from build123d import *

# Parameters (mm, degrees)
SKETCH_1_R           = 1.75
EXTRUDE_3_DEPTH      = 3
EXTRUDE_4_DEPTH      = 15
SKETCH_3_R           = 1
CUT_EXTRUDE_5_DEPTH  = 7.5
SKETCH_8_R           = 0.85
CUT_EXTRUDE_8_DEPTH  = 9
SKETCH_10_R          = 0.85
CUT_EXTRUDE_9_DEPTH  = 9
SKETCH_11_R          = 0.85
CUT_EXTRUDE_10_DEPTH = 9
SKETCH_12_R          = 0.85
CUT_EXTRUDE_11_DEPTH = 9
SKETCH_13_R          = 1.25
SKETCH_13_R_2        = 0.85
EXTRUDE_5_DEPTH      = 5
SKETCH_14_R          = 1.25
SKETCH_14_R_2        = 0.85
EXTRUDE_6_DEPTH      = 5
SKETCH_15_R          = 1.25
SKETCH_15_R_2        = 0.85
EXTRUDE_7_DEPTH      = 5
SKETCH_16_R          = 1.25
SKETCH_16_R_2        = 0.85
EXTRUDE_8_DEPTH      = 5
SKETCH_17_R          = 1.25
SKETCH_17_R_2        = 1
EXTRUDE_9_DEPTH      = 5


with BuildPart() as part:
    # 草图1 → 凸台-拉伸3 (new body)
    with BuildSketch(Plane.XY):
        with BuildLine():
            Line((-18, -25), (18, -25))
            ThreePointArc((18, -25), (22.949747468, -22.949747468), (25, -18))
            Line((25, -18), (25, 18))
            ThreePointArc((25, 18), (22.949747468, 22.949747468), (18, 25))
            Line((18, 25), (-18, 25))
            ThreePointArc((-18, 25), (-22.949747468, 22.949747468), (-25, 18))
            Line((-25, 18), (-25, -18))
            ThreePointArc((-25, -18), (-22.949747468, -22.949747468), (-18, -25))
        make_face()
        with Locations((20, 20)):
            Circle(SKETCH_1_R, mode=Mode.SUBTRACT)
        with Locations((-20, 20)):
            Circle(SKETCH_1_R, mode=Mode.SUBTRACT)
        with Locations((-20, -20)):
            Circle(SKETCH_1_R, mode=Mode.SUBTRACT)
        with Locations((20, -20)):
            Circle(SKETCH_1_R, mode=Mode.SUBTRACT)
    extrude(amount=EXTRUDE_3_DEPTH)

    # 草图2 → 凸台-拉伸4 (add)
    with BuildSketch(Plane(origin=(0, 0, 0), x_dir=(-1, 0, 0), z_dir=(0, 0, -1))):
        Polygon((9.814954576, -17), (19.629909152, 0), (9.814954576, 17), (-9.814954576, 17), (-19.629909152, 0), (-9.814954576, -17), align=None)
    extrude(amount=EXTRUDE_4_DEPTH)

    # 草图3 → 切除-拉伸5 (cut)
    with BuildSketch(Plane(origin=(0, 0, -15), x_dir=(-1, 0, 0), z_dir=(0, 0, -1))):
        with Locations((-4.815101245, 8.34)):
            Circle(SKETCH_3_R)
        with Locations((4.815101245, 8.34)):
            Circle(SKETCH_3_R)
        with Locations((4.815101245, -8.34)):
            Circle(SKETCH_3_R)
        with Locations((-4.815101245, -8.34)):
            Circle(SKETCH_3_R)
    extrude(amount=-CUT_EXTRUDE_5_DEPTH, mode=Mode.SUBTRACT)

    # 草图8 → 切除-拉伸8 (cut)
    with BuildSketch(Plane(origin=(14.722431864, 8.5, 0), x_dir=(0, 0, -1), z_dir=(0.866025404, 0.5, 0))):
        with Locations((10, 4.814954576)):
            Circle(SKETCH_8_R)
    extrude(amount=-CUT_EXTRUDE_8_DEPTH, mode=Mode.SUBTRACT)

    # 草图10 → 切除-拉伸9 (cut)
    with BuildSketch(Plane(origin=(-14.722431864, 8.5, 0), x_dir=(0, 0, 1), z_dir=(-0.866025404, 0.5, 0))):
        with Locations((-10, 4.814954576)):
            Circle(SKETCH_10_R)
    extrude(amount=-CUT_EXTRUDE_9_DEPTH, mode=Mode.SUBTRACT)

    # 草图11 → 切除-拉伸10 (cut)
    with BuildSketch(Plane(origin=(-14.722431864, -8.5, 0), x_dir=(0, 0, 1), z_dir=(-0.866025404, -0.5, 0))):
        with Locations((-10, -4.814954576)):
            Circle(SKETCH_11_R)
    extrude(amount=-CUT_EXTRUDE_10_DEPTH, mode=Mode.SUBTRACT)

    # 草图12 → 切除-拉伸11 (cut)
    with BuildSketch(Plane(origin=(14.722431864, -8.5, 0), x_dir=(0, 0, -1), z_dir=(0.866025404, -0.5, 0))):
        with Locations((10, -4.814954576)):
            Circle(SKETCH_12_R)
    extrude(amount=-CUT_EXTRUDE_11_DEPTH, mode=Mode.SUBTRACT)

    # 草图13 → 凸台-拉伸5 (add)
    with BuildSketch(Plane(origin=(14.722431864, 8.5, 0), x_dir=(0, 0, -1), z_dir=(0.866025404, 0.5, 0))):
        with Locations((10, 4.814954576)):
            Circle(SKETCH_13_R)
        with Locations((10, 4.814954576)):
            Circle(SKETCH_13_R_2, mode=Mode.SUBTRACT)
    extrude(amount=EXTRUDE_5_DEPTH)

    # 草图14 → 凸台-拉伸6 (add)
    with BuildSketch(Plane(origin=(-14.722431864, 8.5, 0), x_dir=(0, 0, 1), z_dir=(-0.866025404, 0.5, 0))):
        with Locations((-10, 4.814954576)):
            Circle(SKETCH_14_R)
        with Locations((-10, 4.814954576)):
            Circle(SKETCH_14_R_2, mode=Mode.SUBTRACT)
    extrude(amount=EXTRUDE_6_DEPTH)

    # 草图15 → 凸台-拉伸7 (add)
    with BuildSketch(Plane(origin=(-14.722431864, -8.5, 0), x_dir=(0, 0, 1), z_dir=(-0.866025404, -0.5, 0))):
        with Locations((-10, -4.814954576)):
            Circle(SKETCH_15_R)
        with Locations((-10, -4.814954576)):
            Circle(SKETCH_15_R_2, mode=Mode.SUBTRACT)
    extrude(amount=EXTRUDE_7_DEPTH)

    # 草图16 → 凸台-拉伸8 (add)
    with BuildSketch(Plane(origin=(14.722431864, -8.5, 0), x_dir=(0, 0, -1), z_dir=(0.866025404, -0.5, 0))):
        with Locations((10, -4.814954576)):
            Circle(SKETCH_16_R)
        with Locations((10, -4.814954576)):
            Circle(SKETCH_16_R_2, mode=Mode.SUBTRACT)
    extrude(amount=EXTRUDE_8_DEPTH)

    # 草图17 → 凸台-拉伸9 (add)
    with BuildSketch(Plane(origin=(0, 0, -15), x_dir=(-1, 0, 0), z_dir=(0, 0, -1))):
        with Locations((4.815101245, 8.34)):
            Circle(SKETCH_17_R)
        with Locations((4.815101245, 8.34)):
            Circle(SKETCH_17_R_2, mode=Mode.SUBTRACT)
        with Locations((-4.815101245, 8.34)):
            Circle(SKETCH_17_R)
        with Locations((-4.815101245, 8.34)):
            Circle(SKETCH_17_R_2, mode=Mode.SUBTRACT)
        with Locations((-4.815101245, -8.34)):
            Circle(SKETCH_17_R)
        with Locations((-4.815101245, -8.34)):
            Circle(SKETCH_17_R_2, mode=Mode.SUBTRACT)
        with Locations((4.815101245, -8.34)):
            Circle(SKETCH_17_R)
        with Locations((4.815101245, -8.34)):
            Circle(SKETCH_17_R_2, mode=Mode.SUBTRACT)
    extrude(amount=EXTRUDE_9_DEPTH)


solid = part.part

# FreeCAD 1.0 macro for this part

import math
import FreeCAD as App
import Part
import Sketcher
from FreeCAD import Vector
Q = App.Units.Quantity


def add_polygon(sketch, points):
    """Adds a closed chain of lines whose ends are joined by coincident constraints."""
    first, n = sketch.GeometryCount, len(points)
    for a, b in zip(points, points[1:] + points[:1]):
        sketch.addGeometry(Part.LineSegment(App.Vector(*a, 0), App.Vector(*b, 0)), False)
    for i in range(n):
        sketch.addConstraint(Sketcher.Constraint("Coincident", first + i, 2, first + (i + 1) % n, 1))

doc = App.newDocument("Part")
params = doc.addObject("Spreadsheet::Sheet", "Params")
for row, (alias, value) in enumerate([
    ("sketch1_radius", "7 mm"),
    ("sketch1_diameter", "3.5 mm"),
    ("sketch1_width", "36 mm"),
    ("pad1_length", "3 mm"),
    ("pad2_length", "15 mm"),
    ("sketch3_diameter", "2 mm"),
    ("pocket1_length", "7.5 mm"),
    ("sketch4_diameter", "1.7 mm"),
    ("pocket2_length", "9 mm"),
    ("sketch5_diameter", "1.7 mm"),
    ("pocket3_length", "9 mm"),
    ("sketch6_diameter", "1.7 mm"),
    ("pocket4_length", "9 mm"),
    ("sketch7_diameter", "1.7 mm"),
    ("pocket5_length", "9 mm"),
    ("sketch8_diameter", "2.5 mm"),
    ("sketch8_diameter2", "1.7 mm"),
    ("pad3_length", "5 mm"),
    ("sketch9_diameter", "2.5 mm"),
    ("sketch9_diameter2", "1.7 mm"),
    ("pad4_length", "5 mm"),
    ("sketch10_diameter", "2.5 mm"),
    ("sketch10_diameter2", "1.7 mm"),
    ("pad5_length", "5 mm"),
    ("sketch11_diameter", "2.5 mm"),
    ("sketch11_diameter2", "1.7 mm"),
    ("pad6_length", "5 mm"),
    ("sketch12_diameter", "2 mm"),
    ("sketch12_diameter2", "2.5 mm"),
    ("pad7_length", "5 mm"),
], start=1):
    params.set(f"A{row}", alias)
    params.set(f"B{row}", "=" + value)
    params.setAlias(f"B{row}", alias)

body = doc.addObject("PartDesign::Body", "Body")

# Sketch on XY plane
sketch1 = body.newObject("Sketcher::SketchObject", "Sketch")
sketch1.AttachmentSupport = (doc.getObject("XY_Plane"), [""])
sketch1.MapMode = "FlatFace"
sketch1.addGeometry(Part.LineSegment(Vector(-18, -25, 0), Vector(18, -25, 0)), False)
sketch1.addGeometry(Part.ArcOfCircle(Part.Circle(Vector(18, -18, 0), Vector(0, 0, 1), 7), math.radians(-90), math.radians(0)), False)
sketch1.addGeometry(Part.LineSegment(Vector(25, -18, 0), Vector(25, 18, 0)), False)
sketch1.addGeometry(Part.ArcOfCircle(Part.Circle(Vector(18, 18, 0), Vector(0, 0, 1), 7), math.radians(0), math.radians(90)), False)
sketch1.addGeometry(Part.LineSegment(Vector(18, 25, 0), Vector(-18, 25, 0)), False)
sketch1.addGeometry(Part.ArcOfCircle(Part.Circle(Vector(-18, 18, 0), Vector(0, 0, 1), 7), math.radians(90), math.radians(180)), False)
sketch1.addGeometry(Part.LineSegment(Vector(-25, 18, 0), Vector(-25, -18, 0)), False)
sketch1.addGeometry(Part.ArcOfCircle(Part.Circle(Vector(-18, -18, 0), Vector(0, 0, 1), 7), math.radians(-180), math.radians(-90)), False)
sketch1.addGeometry(Part.Circle(Vector(-20, -20, 0), Vector(0, 0, 1), 1.75), False)
sketch1.addGeometry(Part.Circle(Vector(20, -20, 0), Vector(0, 0, 1), 1.75), False)
sketch1.addGeometry(Part.Circle(Vector(-20, 20, 0), Vector(0, 0, 1), 1.75), False)
sketch1.addGeometry(Part.Circle(Vector(20, 20, 0), Vector(0, 0, 1), 1.75), False)
sketch1.addConstraint(Sketcher.Constraint("Tangent", 0, 2, 1, 1))
sketch1.addConstraint(Sketcher.Constraint("Tangent", 1, 2, 2, 1))
sketch1.addConstraint(Sketcher.Constraint("Tangent", 2, 2, 3, 1))
sketch1.addConstraint(Sketcher.Constraint("Tangent", 3, 2, 4, 1))
sketch1.addConstraint(Sketcher.Constraint("Tangent", 4, 2, 5, 1))
sketch1.addConstraint(Sketcher.Constraint("Tangent", 5, 2, 6, 1))
sketch1.addConstraint(Sketcher.Constraint("Tangent", 6, 2, 7, 1))
sketch1.addConstraint(Sketcher.Constraint("Tangent", 7, 2, 0, 1))
sketch1.addConstraint(Sketcher.Constraint("Horizontal", 0))
sketch1.addConstraint(Sketcher.Constraint("Vertical", 2))
sketch1.addConstraint(Sketcher.Constraint("Horizontal", 4))
sketch1.addConstraint(Sketcher.Constraint("Vertical", 6))
sketch1.addConstraint(Sketcher.Constraint("Equal", 1, 3))
sketch1.addConstraint(Sketcher.Constraint("Equal", 3, 5))
sketch1.addConstraint(Sketcher.Constraint("Equal", 5, 7))
sketch1.addConstraint(Sketcher.Constraint("Equal", 8, 9))
sketch1.addConstraint(Sketcher.Constraint("Equal", 9, 10))
sketch1.addConstraint(Sketcher.Constraint("Equal", 10, 11))
sketch1.addConstraint(Sketcher.Constraint("Symmetric", 1, 3, 5, 3, -1, 1))
sketch1.addConstraint(Sketcher.Constraint("Symmetric", 9, 3, 10, 3, -1, 1))
sketch1.addConstraint(Sketcher.Constraint("Symmetric", 8, 3, 11, 3, -1, 1))
sketch1.addConstraint(Sketcher.Constraint("Symmetric", 8, 3, 9, 3, -2))
sketch1.addConstraint(Sketcher.Constraint("Equal", 4, 2))
sketch1.addConstraint(Sketcher.Constraint("Radius", 1, 7.0))
sketch1.addConstraint(Sketcher.Constraint("Diameter", 8, 3.5))
sketch1.addConstraint(Sketcher.Constraint("DistanceX", 0, 1, 0, 2, 36.0))
sketch1.addConstraint(Sketcher.Constraint("DistanceX", 8, 3, -1, 1, 20.0))
sketch1.addConstraint(Sketcher.Constraint("DistanceY", 8, 3, -1, 1, 20.0))
sketch1.setExpression("Constraints[23]", "Params.sketch1_radius")
sketch1.setExpression("Constraints[24]", "Params.sketch1_diameter")
sketch1.setExpression("Constraints[25]", "Params.sketch1_width")
pad1 = body.newObject("PartDesign::Pad", "Pad")
pad1.Profile = sketch1
pad1.setExpression("Length", "Params.pad1_length")

# Sketch on XY plane
sketch2 = body.newObject("Sketcher::SketchObject", "Sketch001")
sketch2.AttachmentSupport = (doc.getObject("XY_Plane"), [""])
sketch2.MapMode = "FlatFace"
add_polygon(sketch2, [(-9.814955, -17), (-19.629909, 0), (-9.814955, 17), (9.814955, 17), (19.629909, 0), (9.814955, -17)])  # lines 0-5
sketch2.addConstraint(Sketcher.Constraint("Horizontal", 2))
sketch2.addConstraint(Sketcher.Constraint("Horizontal", 5))
sketch2.addConstraint(Sketcher.Constraint("Symmetric", 0, 2, 3, 2, -1, 1))
sketch2.addConstraint(Sketcher.Constraint("Symmetric", 1, 2, 4, 2, -1, 1))
sketch2.addConstraint(Sketcher.Constraint("PointOnObject", 0, 2, -1))
sketch2.addConstraint(Sketcher.Constraint("Parallel", 0, 3))
sketch2.addConstraint(Sketcher.Constraint("Vertical", 2, 2, 4, 2))
sketch2.addConstraint(Sketcher.Constraint("Angle", 0, Q("120 deg")))
sketch2.addConstraint(Sketcher.Constraint("DistanceY", -1, 1, 1, 2, 17.0))
sketch2.addConstraint(Sketcher.Constraint("DistanceX", 2, 1, 2, 2, 19.629909))
pad2 = body.newObject("PartDesign::Pad", "Pad001")
pad2.Profile = sketch2
pad2.setExpression("Length", "Params.pad2_length")
pad2.Reversed = True

# Sketch on XY plane
sketch3 = body.newObject("Sketcher::SketchObject", "Sketch002")
sketch3.AttachmentSupport = (doc.getObject("XY_Plane"), [""])
sketch3.MapMode = "FlatFace"
sketch3.AttachmentOffset = App.Placement(Vector(0, 0, -15), App.Rotation())
sketch3.addGeometry(Part.Circle(Vector(4.815101, 8.34, 0), Vector(0, 0, 1), 1), False)
sketch3.addGeometry(Part.Circle(Vector(-4.815101, 8.34, 0), Vector(0, 0, 1), 1), False)
sketch3.addGeometry(Part.Circle(Vector(-4.815101, -8.34, 0), Vector(0, 0, 1), 1), False)
sketch3.addGeometry(Part.Circle(Vector(4.815101, -8.34, 0), Vector(0, 0, 1), 1), False)
sketch3.addConstraint(Sketcher.Constraint("Equal", 0, 1))
sketch3.addConstraint(Sketcher.Constraint("Equal", 1, 2))
sketch3.addConstraint(Sketcher.Constraint("Equal", 2, 3))
sketch3.addConstraint(Sketcher.Constraint("Symmetric", 0, 3, 2, 3, -1, 1))
sketch3.addConstraint(Sketcher.Constraint("Symmetric", 1, 3, 3, 3, -1, 1))
sketch3.addConstraint(Sketcher.Constraint("Symmetric", 0, 3, 1, 3, -2))
sketch3.addConstraint(Sketcher.Constraint("Diameter", 0, 2.0))
sketch3.addConstraint(Sketcher.Constraint("DistanceY", -1, 1, 0, 3, 8.34))
sketch3.addConstraint(Sketcher.Constraint("DistanceX", -1, 1, 0, 3, 4.815101))
sketch3.setExpression("Constraints[6]", "Params.sketch3_diameter")
pocket1 = body.newObject("PartDesign::Pocket", "Pocket")
pocket1.Profile = sketch3
pocket1.setExpression("Length", "Params.pocket1_length")
pocket1.Reversed = True

# Sketch on an angled plane
sketch4 = body.newObject("Sketcher::SketchObject", "Sketch003")
sketch4.Placement = App.Placement(Vector(14.722432, 8.5, 0), App.Rotation(Vector(0, 0, -1), Vector(-0.5, 0.866025404, 0), Vector(0.866025404, 0.5, 0), "ZXY"))
sketch4.addGeometry(Part.Circle(Vector(10, 4.814955, 0), Vector(0, 0, 1), 0.85), False)
sketch4.addConstraint(Sketcher.Constraint("Diameter", 0, 1.7))
sketch4.addConstraint(Sketcher.Constraint("DistanceX", -1, 1, 0, 3, 10.0))
sketch4.addConstraint(Sketcher.Constraint("DistanceY", -1, 1, 0, 3, 4.814955))
sketch4.setExpression("Constraints[0]", "Params.sketch4_diameter")
pocket2 = body.newObject("PartDesign::Pocket", "Pocket001")
pocket2.Profile = sketch4
pocket2.setExpression("Length", "Params.pocket2_length")

# Sketch on an angled plane
sketch5 = body.newObject("Sketcher::SketchObject", "Sketch004")
sketch5.Placement = App.Placement(Vector(-14.722432, 8.5, 0), App.Rotation(Vector(0, 0, 1), Vector(0.5, 0.866025404, 0), Vector(-0.866025404, 0.5, 0), "ZXY"))
sketch5.addGeometry(Part.Circle(Vector(-10, 4.814955, 0), Vector(0, 0, 1), 0.85), False)
sketch5.addConstraint(Sketcher.Constraint("Diameter", 0, 1.7))
sketch5.addConstraint(Sketcher.Constraint("DistanceX", 0, 3, -1, 1, 10.0))
sketch5.addConstraint(Sketcher.Constraint("DistanceY", -1, 1, 0, 3, 4.814955))
sketch5.setExpression("Constraints[0]", "Params.sketch5_diameter")
pocket3 = body.newObject("PartDesign::Pocket", "Pocket002")
pocket3.Profile = sketch5
pocket3.setExpression("Length", "Params.pocket3_length")

# Sketch on an angled plane
sketch6 = body.newObject("Sketcher::SketchObject", "Sketch005")
sketch6.Placement = App.Placement(Vector(-14.722432, -8.5, 0), App.Rotation(Vector(0, 0, 1), Vector(-0.5, 0.866025404, 0), Vector(-0.866025404, -0.5, 0), "ZXY"))
sketch6.addGeometry(Part.Circle(Vector(-10, -4.814955, 0), Vector(0, 0, 1), 0.85), False)
sketch6.addConstraint(Sketcher.Constraint("Diameter", 0, 1.7))
sketch6.addConstraint(Sketcher.Constraint("DistanceX", 0, 3, -1, 1, 10.0))
sketch6.addConstraint(Sketcher.Constraint("DistanceY", 0, 3, -1, 1, 4.814955))
sketch6.setExpression("Constraints[0]", "Params.sketch6_diameter")
pocket4 = body.newObject("PartDesign::Pocket", "Pocket003")
pocket4.Profile = sketch6
pocket4.setExpression("Length", "Params.pocket4_length")

# Sketch on an angled plane
sketch7 = body.newObject("Sketcher::SketchObject", "Sketch006")
sketch7.Placement = App.Placement(Vector(14.722432, -8.5, 0), App.Rotation(Vector(0, 0, -1), Vector(0.5, 0.866025404, 0), Vector(0.866025404, -0.5, 0), "ZXY"))
sketch7.addGeometry(Part.Circle(Vector(10, -4.814955, 0), Vector(0, 0, 1), 0.85), False)
sketch7.addConstraint(Sketcher.Constraint("Diameter", 0, 1.7))
sketch7.addConstraint(Sketcher.Constraint("DistanceX", -1, 1, 0, 3, 10.0))
sketch7.addConstraint(Sketcher.Constraint("DistanceY", 0, 3, -1, 1, 4.814955))
sketch7.setExpression("Constraints[0]", "Params.sketch7_diameter")
pocket5 = body.newObject("PartDesign::Pocket", "Pocket004")
pocket5.Profile = sketch7
pocket5.setExpression("Length", "Params.pocket5_length")

# Sketch on an angled plane
sketch8 = body.newObject("Sketcher::SketchObject", "Sketch007")
sketch8.Placement = App.Placement(Vector(14.722432, 8.5, 0), App.Rotation(Vector(0, 0, -1), Vector(-0.5, 0.866025404, 0), Vector(0.866025404, 0.5, 0), "ZXY"))
sketch8.addGeometry(Part.Circle(Vector(10, 4.814955, 0), Vector(0, 0, 1), 1.25), False)
sketch8.addGeometry(Part.Circle(Vector(10, 4.814955, 0), Vector(0, 0, 1), 0.85), False)
sketch8.addConstraint(Sketcher.Constraint("Coincident", 1, 3, 0, 3))
sketch8.addConstraint(Sketcher.Constraint("Diameter", 0, 2.5))
sketch8.addConstraint(Sketcher.Constraint("Diameter", 1, 1.7))
sketch8.addConstraint(Sketcher.Constraint("DistanceX", -1, 1, 0, 3, 10.0))
sketch8.addConstraint(Sketcher.Constraint("DistanceY", -1, 1, 0, 3, 4.814955))
sketch8.setExpression("Constraints[1]", "Params.sketch8_diameter")
sketch8.setExpression("Constraints[2]", "Params.sketch8_diameter2")
pad3 = body.newObject("PartDesign::Pad", "Pad002")
pad3.Profile = sketch8
pad3.setExpression("Length", "Params.pad3_length")

# Sketch on an angled plane
sketch9 = body.newObject("Sketcher::SketchObject", "Sketch008")
sketch9.Placement = App.Placement(Vector(-14.722432, 8.5, 0), App.Rotation(Vector(0, 0, 1), Vector(0.5, 0.866025404, 0), Vector(-0.866025404, 0.5, 0), "ZXY"))
sketch9.addGeometry(Part.Circle(Vector(-10, 4.814955, 0), Vector(0, 0, 1), 1.25), False)
sketch9.addGeometry(Part.Circle(Vector(-10, 4.814955, 0), Vector(0, 0, 1), 0.85), False)
sketch9.addConstraint(Sketcher.Constraint("Coincident", 1, 3, 0, 3))
sketch9.addConstraint(Sketcher.Constraint("Diameter", 0, 2.5))
sketch9.addConstraint(Sketcher.Constraint("Diameter", 1, 1.7))
sketch9.addConstraint(Sketcher.Constraint("DistanceX", 0, 3, -1, 1, 10.0))
sketch9.addConstraint(Sketcher.Constraint("DistanceY", -1, 1, 0, 3, 4.814955))
sketch9.setExpression("Constraints[1]", "Params.sketch9_diameter")
sketch9.setExpression("Constraints[2]", "Params.sketch9_diameter2")
pad4 = body.newObject("PartDesign::Pad", "Pad003")
pad4.Profile = sketch9
pad4.setExpression("Length", "Params.pad4_length")

# Sketch on an angled plane
sketch10 = body.newObject("Sketcher::SketchObject", "Sketch009")
sketch10.Placement = App.Placement(Vector(-14.722432, -8.5, 0), App.Rotation(Vector(0, 0, 1), Vector(-0.5, 0.866025404, 0), Vector(-0.866025404, -0.5, 0), "ZXY"))
sketch10.addGeometry(Part.Circle(Vector(-10, -4.814955, 0), Vector(0, 0, 1), 1.25), False)
sketch10.addGeometry(Part.Circle(Vector(-10, -4.814955, 0), Vector(0, 0, 1), 0.85), False)
sketch10.addConstraint(Sketcher.Constraint("Coincident", 1, 3, 0, 3))
sketch10.addConstraint(Sketcher.Constraint("Diameter", 0, 2.5))
sketch10.addConstraint(Sketcher.Constraint("Diameter", 1, 1.7))
sketch10.addConstraint(Sketcher.Constraint("DistanceX", 0, 3, -1, 1, 10.0))
sketch10.addConstraint(Sketcher.Constraint("DistanceY", 0, 3, -1, 1, 4.814955))
sketch10.setExpression("Constraints[1]", "Params.sketch10_diameter")
sketch10.setExpression("Constraints[2]", "Params.sketch10_diameter2")
pad5 = body.newObject("PartDesign::Pad", "Pad004")
pad5.Profile = sketch10
pad5.setExpression("Length", "Params.pad5_length")

# Sketch on an angled plane
sketch11 = body.newObject("Sketcher::SketchObject", "Sketch010")
sketch11.Placement = App.Placement(Vector(14.722432, -8.5, 0), App.Rotation(Vector(0, 0, -1), Vector(0.5, 0.866025404, 0), Vector(0.866025404, -0.5, 0), "ZXY"))
sketch11.addGeometry(Part.Circle(Vector(10, -4.814955, 0), Vector(0, 0, 1), 1.25), False)
sketch11.addGeometry(Part.Circle(Vector(10, -4.814955, 0), Vector(0, 0, 1), 0.85), False)
sketch11.addConstraint(Sketcher.Constraint("Coincident", 1, 3, 0, 3))
sketch11.addConstraint(Sketcher.Constraint("Diameter", 0, 2.5))
sketch11.addConstraint(Sketcher.Constraint("Diameter", 1, 1.7))
sketch11.addConstraint(Sketcher.Constraint("DistanceX", -1, 1, 0, 3, 10.0))
sketch11.addConstraint(Sketcher.Constraint("DistanceY", 0, 3, -1, 1, 4.814955))
sketch11.setExpression("Constraints[1]", "Params.sketch11_diameter")
sketch11.setExpression("Constraints[2]", "Params.sketch11_diameter2")
pad6 = body.newObject("PartDesign::Pad", "Pad005")
pad6.Profile = sketch11
pad6.setExpression("Length", "Params.pad6_length")

# Sketch on XY plane
sketch12 = body.newObject("Sketcher::SketchObject", "Sketch011")
sketch12.AttachmentSupport = (doc.getObject("XY_Plane"), [""])
sketch12.MapMode = "FlatFace"
sketch12.AttachmentOffset = App.Placement(Vector(0, 0, -15), App.Rotation())
sketch12.addGeometry(Part.Circle(Vector(-4.815101, 8.34, 0), Vector(0, 0, 1), 1.25), False)
sketch12.addGeometry(Part.Circle(Vector(-4.815101, 8.34, 0), Vector(0, 0, 1), 1), False)
sketch12.addGeometry(Part.Circle(Vector(4.815101, 8.34, 0), Vector(0, 0, 1), 1.25), False)
sketch12.addGeometry(Part.Circle(Vector(4.815101, 8.34, 0), Vector(0, 0, 1), 1), False)
sketch12.addGeometry(Part.Circle(Vector(4.815101, -8.34, 0), Vector(0, 0, 1), 1.25), False)
sketch12.addGeometry(Part.Circle(Vector(4.815101, -8.34, 0), Vector(0, 0, 1), 1), False)
sketch12.addGeometry(Part.Circle(Vector(-4.815101, -8.34, 0), Vector(0, 0, 1), 1.25), False)
sketch12.addGeometry(Part.Circle(Vector(-4.815101, -8.34, 0), Vector(0, 0, 1), 1), False)
sketch12.addConstraint(Sketcher.Constraint("Coincident", 1, 3, 0, 3))
sketch12.addConstraint(Sketcher.Constraint("Coincident", 3, 3, 2, 3))
sketch12.addConstraint(Sketcher.Constraint("Coincident", 5, 3, 4, 3))
sketch12.addConstraint(Sketcher.Constraint("Coincident", 7, 3, 6, 3))
sketch12.addConstraint(Sketcher.Constraint("Equal", 0, 2))
sketch12.addConstraint(Sketcher.Constraint("Equal", 1, 3))
sketch12.addConstraint(Sketcher.Constraint("Equal", 2, 4))
sketch12.addConstraint(Sketcher.Constraint("Equal", 3, 5))
sketch12.addConstraint(Sketcher.Constraint("Equal", 4, 6))
sketch12.addConstraint(Sketcher.Constraint("Equal", 5, 7))
sketch12.addConstraint(Sketcher.Constraint("Symmetric", 0, 3, 4, 3, -1, 1))
sketch12.addConstraint(Sketcher.Constraint("Symmetric", 2, 3, 6, 3, -1, 1))
sketch12.addConstraint(Sketcher.Constraint("Symmetric", 0, 3, 2, 3, -2))
sketch12.addConstraint(Sketcher.Constraint("Diameter", 1, 2.0))
sketch12.addConstraint(Sketcher.Constraint("Diameter", 0, 2.5))
sketch12.addConstraint(Sketcher.Constraint("DistanceY", -1, 1, 0, 3, 8.34))
sketch12.addConstraint(Sketcher.Constraint("DistanceX", 0, 3, -1, 1, 4.815101))
sketch12.setExpression("Constraints[13]", "Params.sketch12_diameter")
sketch12.setExpression("Constraints[14]", "Params.sketch12_diameter2")
pad7 = body.newObject("PartDesign::Pad", "Pad006")
pad7.Profile = sketch12
pad7.setExpression("Length", "Params.pad7_length")
pad7.Reversed = True

doc.recompute()
